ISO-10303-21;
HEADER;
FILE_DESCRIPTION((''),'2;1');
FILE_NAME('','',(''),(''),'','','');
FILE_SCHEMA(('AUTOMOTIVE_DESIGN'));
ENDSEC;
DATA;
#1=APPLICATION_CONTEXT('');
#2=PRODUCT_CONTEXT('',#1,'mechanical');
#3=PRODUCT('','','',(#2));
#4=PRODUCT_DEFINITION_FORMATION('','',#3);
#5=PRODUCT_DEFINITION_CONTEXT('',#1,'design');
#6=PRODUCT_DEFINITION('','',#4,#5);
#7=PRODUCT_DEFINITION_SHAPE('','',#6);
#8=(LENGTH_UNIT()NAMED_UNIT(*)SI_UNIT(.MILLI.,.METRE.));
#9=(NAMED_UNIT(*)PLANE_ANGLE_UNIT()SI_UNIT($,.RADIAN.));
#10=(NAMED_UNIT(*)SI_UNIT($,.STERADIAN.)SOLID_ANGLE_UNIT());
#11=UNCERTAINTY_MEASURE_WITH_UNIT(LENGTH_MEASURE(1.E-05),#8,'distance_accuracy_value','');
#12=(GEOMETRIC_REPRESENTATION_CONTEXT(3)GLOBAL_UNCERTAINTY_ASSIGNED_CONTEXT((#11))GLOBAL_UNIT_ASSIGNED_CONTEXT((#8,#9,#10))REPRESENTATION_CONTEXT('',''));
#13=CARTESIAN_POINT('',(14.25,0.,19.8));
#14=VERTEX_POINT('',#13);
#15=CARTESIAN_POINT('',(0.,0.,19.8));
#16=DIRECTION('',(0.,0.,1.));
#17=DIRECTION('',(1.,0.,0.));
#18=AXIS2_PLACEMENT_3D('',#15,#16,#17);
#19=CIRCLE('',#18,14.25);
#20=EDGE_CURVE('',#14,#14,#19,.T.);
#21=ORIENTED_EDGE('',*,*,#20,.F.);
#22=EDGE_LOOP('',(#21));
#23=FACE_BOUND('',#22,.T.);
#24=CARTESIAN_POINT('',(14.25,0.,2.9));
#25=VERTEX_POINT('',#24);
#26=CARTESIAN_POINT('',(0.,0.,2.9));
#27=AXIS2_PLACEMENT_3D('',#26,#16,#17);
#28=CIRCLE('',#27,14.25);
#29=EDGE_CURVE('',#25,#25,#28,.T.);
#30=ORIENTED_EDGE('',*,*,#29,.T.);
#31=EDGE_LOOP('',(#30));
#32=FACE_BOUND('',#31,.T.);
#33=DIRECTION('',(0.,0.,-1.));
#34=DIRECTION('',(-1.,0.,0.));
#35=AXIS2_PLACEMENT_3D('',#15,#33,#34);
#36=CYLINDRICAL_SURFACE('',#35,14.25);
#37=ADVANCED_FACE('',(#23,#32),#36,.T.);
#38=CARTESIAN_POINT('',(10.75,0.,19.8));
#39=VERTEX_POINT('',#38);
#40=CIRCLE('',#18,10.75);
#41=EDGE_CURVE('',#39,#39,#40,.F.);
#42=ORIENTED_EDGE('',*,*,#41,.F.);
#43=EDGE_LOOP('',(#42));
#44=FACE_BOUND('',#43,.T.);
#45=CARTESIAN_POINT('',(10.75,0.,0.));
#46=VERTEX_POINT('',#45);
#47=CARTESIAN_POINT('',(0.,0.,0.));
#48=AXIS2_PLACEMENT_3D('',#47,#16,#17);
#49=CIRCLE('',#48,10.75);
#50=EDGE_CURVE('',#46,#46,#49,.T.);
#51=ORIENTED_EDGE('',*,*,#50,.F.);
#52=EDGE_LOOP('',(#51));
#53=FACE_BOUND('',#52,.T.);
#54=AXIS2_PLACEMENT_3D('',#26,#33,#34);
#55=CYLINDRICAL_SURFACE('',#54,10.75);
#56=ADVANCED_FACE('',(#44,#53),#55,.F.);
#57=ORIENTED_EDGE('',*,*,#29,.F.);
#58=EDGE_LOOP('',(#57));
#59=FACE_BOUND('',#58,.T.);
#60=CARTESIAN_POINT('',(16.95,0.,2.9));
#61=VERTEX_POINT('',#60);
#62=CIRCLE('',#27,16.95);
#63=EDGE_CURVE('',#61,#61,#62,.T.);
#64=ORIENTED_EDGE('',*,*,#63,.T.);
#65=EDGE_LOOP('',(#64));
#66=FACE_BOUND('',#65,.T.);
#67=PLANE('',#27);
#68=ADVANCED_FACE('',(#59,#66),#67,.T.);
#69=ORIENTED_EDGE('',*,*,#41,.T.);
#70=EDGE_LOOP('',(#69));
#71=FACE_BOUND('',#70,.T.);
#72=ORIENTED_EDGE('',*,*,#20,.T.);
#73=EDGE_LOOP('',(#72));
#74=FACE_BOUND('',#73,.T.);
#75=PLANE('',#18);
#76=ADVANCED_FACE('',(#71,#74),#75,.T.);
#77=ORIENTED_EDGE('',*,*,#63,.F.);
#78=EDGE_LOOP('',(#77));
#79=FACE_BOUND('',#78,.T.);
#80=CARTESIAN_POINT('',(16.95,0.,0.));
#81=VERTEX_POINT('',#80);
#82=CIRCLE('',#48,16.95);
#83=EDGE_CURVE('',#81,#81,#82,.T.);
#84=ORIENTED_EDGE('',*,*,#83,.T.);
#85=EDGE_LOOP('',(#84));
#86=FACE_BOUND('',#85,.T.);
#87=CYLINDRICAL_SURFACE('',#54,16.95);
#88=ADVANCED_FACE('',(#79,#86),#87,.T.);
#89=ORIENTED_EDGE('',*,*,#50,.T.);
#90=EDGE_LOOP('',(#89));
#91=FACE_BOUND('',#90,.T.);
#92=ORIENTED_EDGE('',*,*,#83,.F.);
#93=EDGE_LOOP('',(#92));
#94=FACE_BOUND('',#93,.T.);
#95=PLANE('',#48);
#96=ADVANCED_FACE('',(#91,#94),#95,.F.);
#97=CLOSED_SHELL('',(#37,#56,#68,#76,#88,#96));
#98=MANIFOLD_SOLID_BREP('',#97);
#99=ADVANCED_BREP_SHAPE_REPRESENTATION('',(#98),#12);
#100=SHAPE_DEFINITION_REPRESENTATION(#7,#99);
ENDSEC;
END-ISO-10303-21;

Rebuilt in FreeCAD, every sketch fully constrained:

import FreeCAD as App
import Part
import Sketcher

doc = App.newDocument("Part")
body = doc.addObject("PartDesign::Body", "Body")

# Sketch on XY plane
sketch1 = doc.addObject("Sketcher::SketchObject", "Sketch")
body.addObject(sketch1)
sketch1.AttachmentSupport = (doc.XY_Plane, [""])
sketch1.MapMode = "FlatFace"
sketch1.addGeometry(Part.Circle(App.Vector(0, 0, 0), App.Vector(0, 0, 1), 16.95), False)
sketch1.addGeometry(Part.Circle(App.Vector(0, 0, 0), App.Vector(0, 0, 1), 10.75), False)
sketch1.addConstraint(Sketcher.Constraint("Coincident", 0, 3, -1, 1))
sketch1.addConstraint(Sketcher.Constraint("Coincident", 1, 3, -1, 1))
sketch1.addConstraint(Sketcher.Constraint("Diameter", 0, 33.9))
sketch1.addConstraint(Sketcher.Constraint("Diameter", 1, 21.5))
pad1 = doc.addObject("PartDesign::Pad", "Pad")
body.addObject(pad1)
pad1.Profile = sketch1
pad1.Length = 2.9

# Sketch on XY plane
sketch2 = doc.addObject("Sketcher::SketchObject", "Sketch001")
body.addObject(sketch2)
sketch2.AttachmentSupport = (doc.XY_Plane, [""])
sketch2.MapMode = "FlatFace"
sketch2.AttachmentOffset = App.Placement(App.Vector(0, 0, 2.9), App.Rotation())
sketch2.addGeometry(Part.Circle(App.Vector(0, 0, 0), App.Vector(0, 0, 1), 14.25), False)
sketch2.addGeometry(Part.Circle(App.Vector(0, 0, 0), App.Vector(0, 0, 1), 10.75), False)
sketch2.addConstraint(Sketcher.Constraint("Coincident", 0, 3, -1, 1))
sketch2.addConstraint(Sketcher.Constraint("Coincident", 1, 3, -1, 1))
sketch2.addConstraint(Sketcher.Constraint("Diameter", 0, 28.5))
sketch2.addConstraint(Sketcher.Constraint("Diameter", 1, 21.5))
pad2 = doc.addObject("PartDesign::Pad", "Pad001")
body.addObject(pad2)
pad2.Profile = sketch2
pad2.Length = 16.9

doc.recompute()
